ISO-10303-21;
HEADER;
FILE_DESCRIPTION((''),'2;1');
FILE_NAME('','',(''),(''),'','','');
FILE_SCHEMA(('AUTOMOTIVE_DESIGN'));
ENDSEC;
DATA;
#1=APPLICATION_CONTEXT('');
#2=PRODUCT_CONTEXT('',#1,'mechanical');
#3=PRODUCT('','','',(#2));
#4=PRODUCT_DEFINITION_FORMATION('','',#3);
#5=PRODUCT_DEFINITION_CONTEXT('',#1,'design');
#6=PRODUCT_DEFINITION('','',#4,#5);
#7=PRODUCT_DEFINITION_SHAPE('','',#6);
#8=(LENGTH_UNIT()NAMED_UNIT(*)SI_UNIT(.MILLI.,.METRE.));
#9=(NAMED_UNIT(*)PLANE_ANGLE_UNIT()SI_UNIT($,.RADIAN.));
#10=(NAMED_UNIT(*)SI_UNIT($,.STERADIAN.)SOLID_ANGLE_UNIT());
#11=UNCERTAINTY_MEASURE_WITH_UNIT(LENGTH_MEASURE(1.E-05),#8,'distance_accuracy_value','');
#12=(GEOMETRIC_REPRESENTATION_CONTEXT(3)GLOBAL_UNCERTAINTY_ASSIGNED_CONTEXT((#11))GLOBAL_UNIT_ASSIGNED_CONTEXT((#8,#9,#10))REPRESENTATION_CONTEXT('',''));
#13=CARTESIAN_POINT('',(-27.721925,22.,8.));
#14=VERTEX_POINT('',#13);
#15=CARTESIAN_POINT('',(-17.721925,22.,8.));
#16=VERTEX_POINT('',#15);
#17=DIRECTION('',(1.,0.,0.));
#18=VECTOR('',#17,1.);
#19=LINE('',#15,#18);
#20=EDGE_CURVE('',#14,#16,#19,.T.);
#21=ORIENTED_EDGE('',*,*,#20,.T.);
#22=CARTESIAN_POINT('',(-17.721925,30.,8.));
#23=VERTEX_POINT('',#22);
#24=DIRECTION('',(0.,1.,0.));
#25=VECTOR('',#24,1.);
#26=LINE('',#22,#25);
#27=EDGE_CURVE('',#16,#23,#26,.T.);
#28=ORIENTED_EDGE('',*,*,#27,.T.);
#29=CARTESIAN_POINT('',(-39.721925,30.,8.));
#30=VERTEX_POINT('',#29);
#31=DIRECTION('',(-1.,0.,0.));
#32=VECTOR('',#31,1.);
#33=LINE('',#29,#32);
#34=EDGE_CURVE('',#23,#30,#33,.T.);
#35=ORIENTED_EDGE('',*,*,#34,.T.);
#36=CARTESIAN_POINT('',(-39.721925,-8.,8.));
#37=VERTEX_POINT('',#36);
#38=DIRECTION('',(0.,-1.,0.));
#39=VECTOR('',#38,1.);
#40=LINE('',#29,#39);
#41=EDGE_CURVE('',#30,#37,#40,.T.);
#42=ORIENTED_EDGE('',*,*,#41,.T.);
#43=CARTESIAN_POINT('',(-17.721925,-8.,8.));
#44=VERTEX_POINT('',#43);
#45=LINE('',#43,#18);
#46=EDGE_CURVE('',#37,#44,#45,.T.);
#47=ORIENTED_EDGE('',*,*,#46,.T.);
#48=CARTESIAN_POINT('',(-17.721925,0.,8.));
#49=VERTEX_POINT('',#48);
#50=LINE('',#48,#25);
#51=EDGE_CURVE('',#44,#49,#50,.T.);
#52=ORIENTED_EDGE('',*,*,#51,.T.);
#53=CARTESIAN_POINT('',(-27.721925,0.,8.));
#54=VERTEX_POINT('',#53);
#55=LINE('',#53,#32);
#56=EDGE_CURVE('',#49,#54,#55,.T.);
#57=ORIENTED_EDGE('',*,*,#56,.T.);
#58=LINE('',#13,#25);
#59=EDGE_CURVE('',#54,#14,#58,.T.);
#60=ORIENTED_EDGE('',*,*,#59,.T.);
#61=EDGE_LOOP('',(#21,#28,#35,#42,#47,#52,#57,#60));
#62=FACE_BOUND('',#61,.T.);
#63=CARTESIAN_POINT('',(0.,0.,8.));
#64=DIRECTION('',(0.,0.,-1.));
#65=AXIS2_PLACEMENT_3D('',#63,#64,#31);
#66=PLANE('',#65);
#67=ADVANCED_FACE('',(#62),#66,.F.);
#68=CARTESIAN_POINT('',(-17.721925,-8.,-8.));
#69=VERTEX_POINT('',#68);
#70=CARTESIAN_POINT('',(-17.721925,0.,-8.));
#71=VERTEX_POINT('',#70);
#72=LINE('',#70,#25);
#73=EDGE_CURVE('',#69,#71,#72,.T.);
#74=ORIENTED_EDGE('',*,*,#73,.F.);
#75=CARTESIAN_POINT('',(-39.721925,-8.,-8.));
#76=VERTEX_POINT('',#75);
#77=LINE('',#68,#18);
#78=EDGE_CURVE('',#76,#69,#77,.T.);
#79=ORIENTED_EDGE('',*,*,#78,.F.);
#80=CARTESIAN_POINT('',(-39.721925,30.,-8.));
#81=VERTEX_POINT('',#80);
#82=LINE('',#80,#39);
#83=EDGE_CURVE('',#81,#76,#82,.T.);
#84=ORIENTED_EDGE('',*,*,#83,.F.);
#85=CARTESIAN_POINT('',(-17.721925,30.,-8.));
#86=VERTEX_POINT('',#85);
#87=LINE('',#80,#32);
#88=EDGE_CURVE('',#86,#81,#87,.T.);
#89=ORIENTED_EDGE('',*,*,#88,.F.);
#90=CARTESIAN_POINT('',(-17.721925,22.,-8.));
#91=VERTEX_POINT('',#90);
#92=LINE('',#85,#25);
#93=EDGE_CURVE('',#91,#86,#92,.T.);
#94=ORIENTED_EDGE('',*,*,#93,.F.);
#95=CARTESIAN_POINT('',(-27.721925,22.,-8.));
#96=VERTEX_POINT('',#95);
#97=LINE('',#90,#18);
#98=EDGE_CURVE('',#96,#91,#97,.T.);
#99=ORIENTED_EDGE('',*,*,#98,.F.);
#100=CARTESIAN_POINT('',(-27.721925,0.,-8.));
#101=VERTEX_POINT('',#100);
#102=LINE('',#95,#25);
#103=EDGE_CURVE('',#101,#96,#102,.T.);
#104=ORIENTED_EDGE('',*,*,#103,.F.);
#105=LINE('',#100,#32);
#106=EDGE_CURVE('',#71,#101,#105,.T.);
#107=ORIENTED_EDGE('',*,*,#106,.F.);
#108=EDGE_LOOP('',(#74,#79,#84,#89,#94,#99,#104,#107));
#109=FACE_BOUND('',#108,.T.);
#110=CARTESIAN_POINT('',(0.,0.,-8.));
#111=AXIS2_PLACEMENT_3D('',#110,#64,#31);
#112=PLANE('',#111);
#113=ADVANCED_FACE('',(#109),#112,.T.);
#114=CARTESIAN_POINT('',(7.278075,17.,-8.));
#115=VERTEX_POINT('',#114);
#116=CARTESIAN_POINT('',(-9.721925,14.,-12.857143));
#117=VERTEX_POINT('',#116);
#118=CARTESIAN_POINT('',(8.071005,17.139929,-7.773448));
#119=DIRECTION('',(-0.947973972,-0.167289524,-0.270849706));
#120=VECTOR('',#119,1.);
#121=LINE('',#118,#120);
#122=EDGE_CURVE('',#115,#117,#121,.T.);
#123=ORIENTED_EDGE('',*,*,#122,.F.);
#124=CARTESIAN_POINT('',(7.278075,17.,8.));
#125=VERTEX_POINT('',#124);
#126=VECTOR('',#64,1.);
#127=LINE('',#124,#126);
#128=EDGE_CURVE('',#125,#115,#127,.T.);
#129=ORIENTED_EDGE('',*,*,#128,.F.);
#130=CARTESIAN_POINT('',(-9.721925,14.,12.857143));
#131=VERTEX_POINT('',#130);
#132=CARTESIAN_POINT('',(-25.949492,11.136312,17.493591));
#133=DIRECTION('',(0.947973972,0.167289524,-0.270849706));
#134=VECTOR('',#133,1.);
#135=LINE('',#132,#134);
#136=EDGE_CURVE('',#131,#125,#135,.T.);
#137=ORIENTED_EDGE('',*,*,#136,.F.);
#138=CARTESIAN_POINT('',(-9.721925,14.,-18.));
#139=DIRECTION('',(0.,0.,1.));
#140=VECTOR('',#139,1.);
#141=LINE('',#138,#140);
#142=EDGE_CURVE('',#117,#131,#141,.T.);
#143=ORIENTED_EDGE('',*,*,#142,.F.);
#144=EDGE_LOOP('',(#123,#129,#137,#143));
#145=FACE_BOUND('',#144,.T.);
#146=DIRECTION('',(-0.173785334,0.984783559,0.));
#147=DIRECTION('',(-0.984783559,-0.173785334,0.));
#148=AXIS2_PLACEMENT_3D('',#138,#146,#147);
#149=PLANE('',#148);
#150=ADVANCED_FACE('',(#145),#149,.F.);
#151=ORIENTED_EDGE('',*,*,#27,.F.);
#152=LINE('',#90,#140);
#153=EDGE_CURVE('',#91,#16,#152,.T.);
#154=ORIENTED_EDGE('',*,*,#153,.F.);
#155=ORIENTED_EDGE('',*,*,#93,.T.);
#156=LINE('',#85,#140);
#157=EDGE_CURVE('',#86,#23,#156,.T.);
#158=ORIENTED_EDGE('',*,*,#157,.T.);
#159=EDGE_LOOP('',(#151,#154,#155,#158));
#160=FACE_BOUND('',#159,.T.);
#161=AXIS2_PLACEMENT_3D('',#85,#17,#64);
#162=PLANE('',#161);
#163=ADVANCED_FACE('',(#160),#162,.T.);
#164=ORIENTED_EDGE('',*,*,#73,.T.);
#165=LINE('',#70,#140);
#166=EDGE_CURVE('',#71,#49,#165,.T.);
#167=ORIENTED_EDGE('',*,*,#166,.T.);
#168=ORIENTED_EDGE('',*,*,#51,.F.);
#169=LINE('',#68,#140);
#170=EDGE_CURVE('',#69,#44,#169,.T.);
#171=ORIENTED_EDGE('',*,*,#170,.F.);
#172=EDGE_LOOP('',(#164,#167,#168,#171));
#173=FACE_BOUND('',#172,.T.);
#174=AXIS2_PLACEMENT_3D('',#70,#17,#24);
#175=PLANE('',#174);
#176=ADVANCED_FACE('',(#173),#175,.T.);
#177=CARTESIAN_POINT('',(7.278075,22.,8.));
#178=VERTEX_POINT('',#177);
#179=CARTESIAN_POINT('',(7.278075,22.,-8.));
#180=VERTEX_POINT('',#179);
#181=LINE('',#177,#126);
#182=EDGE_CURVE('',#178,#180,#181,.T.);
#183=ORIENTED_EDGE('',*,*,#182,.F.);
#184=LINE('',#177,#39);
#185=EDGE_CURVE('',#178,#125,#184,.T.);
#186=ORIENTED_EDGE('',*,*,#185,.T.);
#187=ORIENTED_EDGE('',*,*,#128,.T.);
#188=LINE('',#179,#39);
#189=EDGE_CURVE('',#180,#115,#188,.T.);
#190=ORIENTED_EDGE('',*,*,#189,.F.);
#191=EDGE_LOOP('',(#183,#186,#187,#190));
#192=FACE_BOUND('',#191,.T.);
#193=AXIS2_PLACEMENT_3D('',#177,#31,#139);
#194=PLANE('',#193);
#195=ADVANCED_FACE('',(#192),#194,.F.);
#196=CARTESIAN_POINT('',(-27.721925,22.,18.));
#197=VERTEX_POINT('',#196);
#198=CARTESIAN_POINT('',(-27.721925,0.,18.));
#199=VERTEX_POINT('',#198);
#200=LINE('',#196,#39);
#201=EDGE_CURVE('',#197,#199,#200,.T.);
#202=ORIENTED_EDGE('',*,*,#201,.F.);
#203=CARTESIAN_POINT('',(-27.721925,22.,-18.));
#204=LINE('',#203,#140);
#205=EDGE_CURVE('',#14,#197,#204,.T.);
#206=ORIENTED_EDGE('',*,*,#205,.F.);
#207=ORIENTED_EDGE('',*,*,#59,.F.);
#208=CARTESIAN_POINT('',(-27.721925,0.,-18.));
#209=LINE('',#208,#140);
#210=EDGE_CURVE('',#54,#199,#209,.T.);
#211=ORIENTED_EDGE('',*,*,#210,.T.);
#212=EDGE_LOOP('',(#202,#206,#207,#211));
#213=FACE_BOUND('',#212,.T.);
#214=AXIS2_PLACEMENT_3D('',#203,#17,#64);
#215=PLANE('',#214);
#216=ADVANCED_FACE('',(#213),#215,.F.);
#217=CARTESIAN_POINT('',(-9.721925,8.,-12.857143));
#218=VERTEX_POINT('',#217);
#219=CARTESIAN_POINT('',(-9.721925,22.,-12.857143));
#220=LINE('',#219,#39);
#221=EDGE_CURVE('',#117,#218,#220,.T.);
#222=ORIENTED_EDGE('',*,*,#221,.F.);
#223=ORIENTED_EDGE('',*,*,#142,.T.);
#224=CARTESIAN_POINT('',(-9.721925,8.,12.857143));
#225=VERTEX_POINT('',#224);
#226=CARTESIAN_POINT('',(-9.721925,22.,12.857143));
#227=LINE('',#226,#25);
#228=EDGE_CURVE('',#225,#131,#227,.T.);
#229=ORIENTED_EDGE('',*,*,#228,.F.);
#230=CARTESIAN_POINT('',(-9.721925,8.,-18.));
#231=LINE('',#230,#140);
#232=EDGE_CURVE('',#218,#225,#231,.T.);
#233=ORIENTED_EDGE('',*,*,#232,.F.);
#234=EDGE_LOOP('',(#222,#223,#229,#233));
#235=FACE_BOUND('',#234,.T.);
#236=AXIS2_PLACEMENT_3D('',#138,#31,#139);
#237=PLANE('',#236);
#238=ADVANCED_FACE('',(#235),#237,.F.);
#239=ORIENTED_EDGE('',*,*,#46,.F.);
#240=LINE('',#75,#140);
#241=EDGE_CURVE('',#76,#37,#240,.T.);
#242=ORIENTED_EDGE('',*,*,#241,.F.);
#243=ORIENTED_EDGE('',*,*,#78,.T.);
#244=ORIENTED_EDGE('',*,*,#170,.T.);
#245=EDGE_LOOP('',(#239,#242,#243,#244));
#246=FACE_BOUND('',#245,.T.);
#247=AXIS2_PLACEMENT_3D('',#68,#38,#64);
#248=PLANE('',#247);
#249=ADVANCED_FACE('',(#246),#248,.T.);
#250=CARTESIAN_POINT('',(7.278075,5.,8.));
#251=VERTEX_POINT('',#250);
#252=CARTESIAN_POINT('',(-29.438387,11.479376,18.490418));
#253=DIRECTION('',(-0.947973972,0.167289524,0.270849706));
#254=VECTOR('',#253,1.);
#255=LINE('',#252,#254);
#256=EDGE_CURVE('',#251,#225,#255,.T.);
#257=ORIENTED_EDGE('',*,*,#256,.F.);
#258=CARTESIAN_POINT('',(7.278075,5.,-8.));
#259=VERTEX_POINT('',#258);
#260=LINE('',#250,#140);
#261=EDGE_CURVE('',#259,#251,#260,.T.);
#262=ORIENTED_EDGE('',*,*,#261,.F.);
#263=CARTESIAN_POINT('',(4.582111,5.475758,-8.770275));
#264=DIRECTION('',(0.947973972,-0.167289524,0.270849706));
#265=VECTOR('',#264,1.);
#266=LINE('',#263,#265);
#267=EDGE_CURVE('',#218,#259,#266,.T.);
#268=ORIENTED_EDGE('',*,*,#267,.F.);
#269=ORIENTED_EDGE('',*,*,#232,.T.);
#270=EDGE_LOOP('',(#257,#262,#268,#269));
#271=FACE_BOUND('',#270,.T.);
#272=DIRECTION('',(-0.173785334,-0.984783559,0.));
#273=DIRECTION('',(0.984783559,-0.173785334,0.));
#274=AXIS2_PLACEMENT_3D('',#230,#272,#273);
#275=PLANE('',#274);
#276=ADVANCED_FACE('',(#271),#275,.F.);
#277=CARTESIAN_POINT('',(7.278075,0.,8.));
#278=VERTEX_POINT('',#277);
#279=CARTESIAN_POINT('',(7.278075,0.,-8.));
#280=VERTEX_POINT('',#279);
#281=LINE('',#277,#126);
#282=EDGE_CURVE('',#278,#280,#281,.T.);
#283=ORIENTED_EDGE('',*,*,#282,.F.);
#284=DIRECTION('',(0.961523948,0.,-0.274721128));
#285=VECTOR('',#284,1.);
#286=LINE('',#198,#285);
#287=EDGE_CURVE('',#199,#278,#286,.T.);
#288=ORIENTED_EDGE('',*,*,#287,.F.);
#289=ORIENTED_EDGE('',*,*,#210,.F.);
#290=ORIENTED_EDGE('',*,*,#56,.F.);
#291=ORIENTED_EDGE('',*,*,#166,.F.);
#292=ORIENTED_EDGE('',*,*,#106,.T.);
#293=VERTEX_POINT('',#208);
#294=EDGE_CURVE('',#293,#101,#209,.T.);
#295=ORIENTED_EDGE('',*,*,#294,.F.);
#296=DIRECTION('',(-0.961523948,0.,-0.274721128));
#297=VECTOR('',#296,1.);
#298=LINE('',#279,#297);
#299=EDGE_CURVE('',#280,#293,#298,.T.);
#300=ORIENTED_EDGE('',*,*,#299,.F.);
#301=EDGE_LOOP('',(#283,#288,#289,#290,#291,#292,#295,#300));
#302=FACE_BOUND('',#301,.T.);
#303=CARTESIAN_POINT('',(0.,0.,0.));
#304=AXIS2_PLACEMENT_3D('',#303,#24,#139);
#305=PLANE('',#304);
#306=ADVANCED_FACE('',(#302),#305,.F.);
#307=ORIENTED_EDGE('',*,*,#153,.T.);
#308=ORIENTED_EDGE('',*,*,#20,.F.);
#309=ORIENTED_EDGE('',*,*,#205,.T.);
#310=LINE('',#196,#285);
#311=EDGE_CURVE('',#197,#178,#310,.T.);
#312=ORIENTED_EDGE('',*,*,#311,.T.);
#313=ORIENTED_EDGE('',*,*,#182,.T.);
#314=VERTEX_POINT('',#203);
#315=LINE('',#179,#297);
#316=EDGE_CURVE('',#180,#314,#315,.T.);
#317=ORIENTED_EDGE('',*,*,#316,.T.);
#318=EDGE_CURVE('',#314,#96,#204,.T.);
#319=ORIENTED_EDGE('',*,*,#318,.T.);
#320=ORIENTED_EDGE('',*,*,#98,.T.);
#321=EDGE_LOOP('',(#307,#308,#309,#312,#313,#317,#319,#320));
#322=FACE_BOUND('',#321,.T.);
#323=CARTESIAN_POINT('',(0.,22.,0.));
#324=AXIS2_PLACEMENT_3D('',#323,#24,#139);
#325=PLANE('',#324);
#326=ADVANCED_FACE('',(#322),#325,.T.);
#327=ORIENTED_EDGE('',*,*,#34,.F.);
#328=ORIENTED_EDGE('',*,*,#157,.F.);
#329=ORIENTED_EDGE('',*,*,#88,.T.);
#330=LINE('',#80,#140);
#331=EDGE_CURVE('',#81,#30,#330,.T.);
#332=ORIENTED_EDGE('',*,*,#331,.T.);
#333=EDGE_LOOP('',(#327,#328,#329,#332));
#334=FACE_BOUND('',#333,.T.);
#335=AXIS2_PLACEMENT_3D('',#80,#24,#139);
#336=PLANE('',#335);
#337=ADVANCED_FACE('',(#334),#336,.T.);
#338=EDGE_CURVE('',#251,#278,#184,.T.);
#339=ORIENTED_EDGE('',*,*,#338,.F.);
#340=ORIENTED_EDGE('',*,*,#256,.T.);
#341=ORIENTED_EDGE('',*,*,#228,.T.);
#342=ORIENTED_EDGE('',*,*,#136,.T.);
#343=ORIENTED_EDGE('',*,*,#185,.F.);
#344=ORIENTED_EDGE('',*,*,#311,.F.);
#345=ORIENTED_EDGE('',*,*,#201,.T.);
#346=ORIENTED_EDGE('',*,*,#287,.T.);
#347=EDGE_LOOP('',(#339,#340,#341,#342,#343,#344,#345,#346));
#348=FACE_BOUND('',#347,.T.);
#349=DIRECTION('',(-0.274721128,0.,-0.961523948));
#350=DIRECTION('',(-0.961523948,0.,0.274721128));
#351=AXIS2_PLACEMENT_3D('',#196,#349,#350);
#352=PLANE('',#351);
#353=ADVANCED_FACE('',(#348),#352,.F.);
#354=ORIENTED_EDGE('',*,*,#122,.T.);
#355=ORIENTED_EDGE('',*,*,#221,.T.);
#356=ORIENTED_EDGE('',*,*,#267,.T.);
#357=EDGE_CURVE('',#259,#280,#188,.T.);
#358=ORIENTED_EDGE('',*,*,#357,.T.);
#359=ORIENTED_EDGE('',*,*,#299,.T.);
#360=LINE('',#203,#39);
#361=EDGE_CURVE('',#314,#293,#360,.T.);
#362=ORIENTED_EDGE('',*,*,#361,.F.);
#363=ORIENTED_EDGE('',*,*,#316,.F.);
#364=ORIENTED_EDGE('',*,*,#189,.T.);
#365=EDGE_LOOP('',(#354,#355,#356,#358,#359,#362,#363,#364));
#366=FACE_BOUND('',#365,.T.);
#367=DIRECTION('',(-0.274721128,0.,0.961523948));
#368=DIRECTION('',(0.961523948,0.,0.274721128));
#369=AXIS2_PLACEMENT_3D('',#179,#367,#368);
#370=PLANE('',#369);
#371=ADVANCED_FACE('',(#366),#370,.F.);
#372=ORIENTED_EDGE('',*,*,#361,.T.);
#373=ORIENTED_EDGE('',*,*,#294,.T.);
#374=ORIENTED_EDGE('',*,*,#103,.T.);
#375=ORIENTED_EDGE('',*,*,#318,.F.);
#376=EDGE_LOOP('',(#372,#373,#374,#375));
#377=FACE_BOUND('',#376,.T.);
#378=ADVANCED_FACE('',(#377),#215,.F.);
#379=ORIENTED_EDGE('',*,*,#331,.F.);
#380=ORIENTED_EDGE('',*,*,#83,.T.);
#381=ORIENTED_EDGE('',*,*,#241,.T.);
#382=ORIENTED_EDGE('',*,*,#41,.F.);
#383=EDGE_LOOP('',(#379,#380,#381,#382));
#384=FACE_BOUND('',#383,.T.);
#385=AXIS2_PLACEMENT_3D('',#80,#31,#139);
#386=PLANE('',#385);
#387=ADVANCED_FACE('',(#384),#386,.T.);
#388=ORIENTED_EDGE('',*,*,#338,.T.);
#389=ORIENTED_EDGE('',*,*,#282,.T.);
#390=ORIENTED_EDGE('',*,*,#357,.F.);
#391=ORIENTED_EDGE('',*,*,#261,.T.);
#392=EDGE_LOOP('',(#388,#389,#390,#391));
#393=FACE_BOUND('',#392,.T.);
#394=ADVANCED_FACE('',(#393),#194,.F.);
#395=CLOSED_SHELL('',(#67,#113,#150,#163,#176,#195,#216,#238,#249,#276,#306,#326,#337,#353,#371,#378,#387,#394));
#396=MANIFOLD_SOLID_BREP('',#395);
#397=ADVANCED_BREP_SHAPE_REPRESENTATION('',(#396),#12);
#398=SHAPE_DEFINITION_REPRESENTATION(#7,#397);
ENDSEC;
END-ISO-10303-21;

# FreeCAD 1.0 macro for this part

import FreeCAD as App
import Part
import Sketcher
from FreeCAD import Vector
Q = App.Units.Quantity


def add_polygon(sketch, points):
    """Adds a closed chain of lines whose ends are joined by coincident constraints."""
    first, n = sketch.GeometryCount, len(points)
    for a, b in zip(points, points[1:] + points[:1]):
        sketch.addGeometry(Part.LineSegment(App.Vector(*a, 0), App.Vector(*b, 0)), False)
    for i in range(n):
        sketch.addConstraint(Sketcher.Constraint("Coincident", first + i, 2, first + (i + 1) % n, 1))

doc = App.newDocument("Part")
body = doc.addObject("PartDesign::Body", "Body")

# Sketch on XZ plane
sketch1 = doc.addObject("Sketcher::SketchObject", "Sketch")
body.addObject(sketch1)
sketch1.AttachmentSupport = (doc.XZ_Plane, [""])
sketch1.MapMode = "FlatFace"
add_polygon(sketch1, [(-27.721925, -18), (-27.721925, 18), (7.278075, 8), (7.278075, -8)])  # lines 0-3
sketch1.addConstraint([
    Sketcher.Constraint("Vertical", 0),
    Sketcher.Constraint("Vertical", 2),
    Sketcher.Constraint("Equal", 1, 3),
    Sketcher.Constraint("DistanceY", 0, 1, 0, 2, Q("36 mm")),
    Sketcher.Constraint("DistanceY", 2, 2, 2, 1, Q("16 mm")),
    Sketcher.Constraint("DistanceY", -1, 1, 0, 2, Q("18 mm")),
    Sketcher.Constraint("DistanceX", 0, 2, 1, 2, Q("35 mm")),
    Sketcher.Constraint("DistanceX", 0, 2, -1, 1, Q("27.721925 mm")),
])
pad1 = doc.addObject("PartDesign::Pad", "Pad")
body.addObject(pad1)
pad1.Profile = sketch1
pad1.Length = 22
pad1.Reversed = True

# Sketch on XY plane
sketch2 = doc.addObject("Sketcher::SketchObject", "Sketch001")
body.addObject(sketch2)
sketch2.AttachmentSupport = (doc.XY_Plane, [""])
sketch2.MapMode = "FlatFace"
add_polygon(sketch2, [(-9.721925, 14), (-9.721925, 8), (7.278075, 5), (7.278075, 17)])  # lines 0-3
sketch2.addConstraint([
    Sketcher.Constraint("Vertical", 0),
    Sketcher.Constraint("Vertical", 2),
    Sketcher.Constraint("Equal", 1, 3),
    Sketcher.Constraint("DistanceY", 0, 2, 0, 1, Q("6 mm")),
    Sketcher.Constraint("DistanceY", 2, 1, 2, 2, Q("12 mm")),
    Sketcher.Constraint("DistanceY", -1, 1, 0, 2, Q("8 mm")),
    Sketcher.Constraint("DistanceX", 0, 2, 1, 2, Q("17 mm")),
    Sketcher.Constraint("DistanceX", 0, 2, -1, 1, Q("9.721925 mm")),
])
pocket1 = doc.addObject("PartDesign::Pocket", "Pocket")
body.addObject(pocket1)
pocket1.Profile = sketch2
pocket1.Type = "ThroughAll"
pocket1.Midplane = True

# Sketch on XY plane
sketch3 = doc.addObject("Sketcher::SketchObject", "Sketch002")
body.addObject(sketch3)
sketch3.AttachmentSupport = (doc.XY_Plane, [""])
sketch3.MapMode = "FlatFace"
add_polygon(sketch3, [(-39.721925, 30), (-39.721925, -8), (-17.721925, -8), (-17.721925, 0), (-27.721925, 0), (-27.721925, 22), (-17.721925, 22), (-17.721925, 30)])  # lines 0-7
sketch3.addConstraint([
    Sketcher.Constraint("Vertical", 0),
    Sketcher.Constraint("Horizontal", 1),
    Sketcher.Constraint("Vertical", 2),
    Sketcher.Constraint("Horizontal", 3),
    Sketcher.Constraint("Vertical", 4),
    Sketcher.Constraint("Horizontal", 5),
    Sketcher.Constraint("Vertical", 6),
    Sketcher.Constraint("Horizontal", 7),
    Sketcher.Constraint("PointOnObject", 2, 2, -1),
    Sketcher.Constraint("Vertical", 2, 2, 5, 2),
    Sketcher.Constraint("Equal", 7, 4),
    Sketcher.Constraint("Equal", 2, 6),
    Sketcher.Constraint("DistanceX", 1, 1, 1, 2, Q("22 mm")),
    Sketcher.Constraint("DistanceX", 3, 2, 3, 1, Q("10 mm")),
    Sketcher.Constraint("DistanceY", 0, 2, 0, 1, Q("38 mm")),
    Sketcher.Constraint("DistanceX", 0, 2, -1, 1, Q("39.721925 mm")),
])
pad2 = doc.addObject("PartDesign::Pad", "Pad001")
body.addObject(pad2)
pad2.Profile = sketch3
pad2.Type = "TwoLengths"
pad2.Length = 8
pad2.Length2 = 8

doc.recompute()
